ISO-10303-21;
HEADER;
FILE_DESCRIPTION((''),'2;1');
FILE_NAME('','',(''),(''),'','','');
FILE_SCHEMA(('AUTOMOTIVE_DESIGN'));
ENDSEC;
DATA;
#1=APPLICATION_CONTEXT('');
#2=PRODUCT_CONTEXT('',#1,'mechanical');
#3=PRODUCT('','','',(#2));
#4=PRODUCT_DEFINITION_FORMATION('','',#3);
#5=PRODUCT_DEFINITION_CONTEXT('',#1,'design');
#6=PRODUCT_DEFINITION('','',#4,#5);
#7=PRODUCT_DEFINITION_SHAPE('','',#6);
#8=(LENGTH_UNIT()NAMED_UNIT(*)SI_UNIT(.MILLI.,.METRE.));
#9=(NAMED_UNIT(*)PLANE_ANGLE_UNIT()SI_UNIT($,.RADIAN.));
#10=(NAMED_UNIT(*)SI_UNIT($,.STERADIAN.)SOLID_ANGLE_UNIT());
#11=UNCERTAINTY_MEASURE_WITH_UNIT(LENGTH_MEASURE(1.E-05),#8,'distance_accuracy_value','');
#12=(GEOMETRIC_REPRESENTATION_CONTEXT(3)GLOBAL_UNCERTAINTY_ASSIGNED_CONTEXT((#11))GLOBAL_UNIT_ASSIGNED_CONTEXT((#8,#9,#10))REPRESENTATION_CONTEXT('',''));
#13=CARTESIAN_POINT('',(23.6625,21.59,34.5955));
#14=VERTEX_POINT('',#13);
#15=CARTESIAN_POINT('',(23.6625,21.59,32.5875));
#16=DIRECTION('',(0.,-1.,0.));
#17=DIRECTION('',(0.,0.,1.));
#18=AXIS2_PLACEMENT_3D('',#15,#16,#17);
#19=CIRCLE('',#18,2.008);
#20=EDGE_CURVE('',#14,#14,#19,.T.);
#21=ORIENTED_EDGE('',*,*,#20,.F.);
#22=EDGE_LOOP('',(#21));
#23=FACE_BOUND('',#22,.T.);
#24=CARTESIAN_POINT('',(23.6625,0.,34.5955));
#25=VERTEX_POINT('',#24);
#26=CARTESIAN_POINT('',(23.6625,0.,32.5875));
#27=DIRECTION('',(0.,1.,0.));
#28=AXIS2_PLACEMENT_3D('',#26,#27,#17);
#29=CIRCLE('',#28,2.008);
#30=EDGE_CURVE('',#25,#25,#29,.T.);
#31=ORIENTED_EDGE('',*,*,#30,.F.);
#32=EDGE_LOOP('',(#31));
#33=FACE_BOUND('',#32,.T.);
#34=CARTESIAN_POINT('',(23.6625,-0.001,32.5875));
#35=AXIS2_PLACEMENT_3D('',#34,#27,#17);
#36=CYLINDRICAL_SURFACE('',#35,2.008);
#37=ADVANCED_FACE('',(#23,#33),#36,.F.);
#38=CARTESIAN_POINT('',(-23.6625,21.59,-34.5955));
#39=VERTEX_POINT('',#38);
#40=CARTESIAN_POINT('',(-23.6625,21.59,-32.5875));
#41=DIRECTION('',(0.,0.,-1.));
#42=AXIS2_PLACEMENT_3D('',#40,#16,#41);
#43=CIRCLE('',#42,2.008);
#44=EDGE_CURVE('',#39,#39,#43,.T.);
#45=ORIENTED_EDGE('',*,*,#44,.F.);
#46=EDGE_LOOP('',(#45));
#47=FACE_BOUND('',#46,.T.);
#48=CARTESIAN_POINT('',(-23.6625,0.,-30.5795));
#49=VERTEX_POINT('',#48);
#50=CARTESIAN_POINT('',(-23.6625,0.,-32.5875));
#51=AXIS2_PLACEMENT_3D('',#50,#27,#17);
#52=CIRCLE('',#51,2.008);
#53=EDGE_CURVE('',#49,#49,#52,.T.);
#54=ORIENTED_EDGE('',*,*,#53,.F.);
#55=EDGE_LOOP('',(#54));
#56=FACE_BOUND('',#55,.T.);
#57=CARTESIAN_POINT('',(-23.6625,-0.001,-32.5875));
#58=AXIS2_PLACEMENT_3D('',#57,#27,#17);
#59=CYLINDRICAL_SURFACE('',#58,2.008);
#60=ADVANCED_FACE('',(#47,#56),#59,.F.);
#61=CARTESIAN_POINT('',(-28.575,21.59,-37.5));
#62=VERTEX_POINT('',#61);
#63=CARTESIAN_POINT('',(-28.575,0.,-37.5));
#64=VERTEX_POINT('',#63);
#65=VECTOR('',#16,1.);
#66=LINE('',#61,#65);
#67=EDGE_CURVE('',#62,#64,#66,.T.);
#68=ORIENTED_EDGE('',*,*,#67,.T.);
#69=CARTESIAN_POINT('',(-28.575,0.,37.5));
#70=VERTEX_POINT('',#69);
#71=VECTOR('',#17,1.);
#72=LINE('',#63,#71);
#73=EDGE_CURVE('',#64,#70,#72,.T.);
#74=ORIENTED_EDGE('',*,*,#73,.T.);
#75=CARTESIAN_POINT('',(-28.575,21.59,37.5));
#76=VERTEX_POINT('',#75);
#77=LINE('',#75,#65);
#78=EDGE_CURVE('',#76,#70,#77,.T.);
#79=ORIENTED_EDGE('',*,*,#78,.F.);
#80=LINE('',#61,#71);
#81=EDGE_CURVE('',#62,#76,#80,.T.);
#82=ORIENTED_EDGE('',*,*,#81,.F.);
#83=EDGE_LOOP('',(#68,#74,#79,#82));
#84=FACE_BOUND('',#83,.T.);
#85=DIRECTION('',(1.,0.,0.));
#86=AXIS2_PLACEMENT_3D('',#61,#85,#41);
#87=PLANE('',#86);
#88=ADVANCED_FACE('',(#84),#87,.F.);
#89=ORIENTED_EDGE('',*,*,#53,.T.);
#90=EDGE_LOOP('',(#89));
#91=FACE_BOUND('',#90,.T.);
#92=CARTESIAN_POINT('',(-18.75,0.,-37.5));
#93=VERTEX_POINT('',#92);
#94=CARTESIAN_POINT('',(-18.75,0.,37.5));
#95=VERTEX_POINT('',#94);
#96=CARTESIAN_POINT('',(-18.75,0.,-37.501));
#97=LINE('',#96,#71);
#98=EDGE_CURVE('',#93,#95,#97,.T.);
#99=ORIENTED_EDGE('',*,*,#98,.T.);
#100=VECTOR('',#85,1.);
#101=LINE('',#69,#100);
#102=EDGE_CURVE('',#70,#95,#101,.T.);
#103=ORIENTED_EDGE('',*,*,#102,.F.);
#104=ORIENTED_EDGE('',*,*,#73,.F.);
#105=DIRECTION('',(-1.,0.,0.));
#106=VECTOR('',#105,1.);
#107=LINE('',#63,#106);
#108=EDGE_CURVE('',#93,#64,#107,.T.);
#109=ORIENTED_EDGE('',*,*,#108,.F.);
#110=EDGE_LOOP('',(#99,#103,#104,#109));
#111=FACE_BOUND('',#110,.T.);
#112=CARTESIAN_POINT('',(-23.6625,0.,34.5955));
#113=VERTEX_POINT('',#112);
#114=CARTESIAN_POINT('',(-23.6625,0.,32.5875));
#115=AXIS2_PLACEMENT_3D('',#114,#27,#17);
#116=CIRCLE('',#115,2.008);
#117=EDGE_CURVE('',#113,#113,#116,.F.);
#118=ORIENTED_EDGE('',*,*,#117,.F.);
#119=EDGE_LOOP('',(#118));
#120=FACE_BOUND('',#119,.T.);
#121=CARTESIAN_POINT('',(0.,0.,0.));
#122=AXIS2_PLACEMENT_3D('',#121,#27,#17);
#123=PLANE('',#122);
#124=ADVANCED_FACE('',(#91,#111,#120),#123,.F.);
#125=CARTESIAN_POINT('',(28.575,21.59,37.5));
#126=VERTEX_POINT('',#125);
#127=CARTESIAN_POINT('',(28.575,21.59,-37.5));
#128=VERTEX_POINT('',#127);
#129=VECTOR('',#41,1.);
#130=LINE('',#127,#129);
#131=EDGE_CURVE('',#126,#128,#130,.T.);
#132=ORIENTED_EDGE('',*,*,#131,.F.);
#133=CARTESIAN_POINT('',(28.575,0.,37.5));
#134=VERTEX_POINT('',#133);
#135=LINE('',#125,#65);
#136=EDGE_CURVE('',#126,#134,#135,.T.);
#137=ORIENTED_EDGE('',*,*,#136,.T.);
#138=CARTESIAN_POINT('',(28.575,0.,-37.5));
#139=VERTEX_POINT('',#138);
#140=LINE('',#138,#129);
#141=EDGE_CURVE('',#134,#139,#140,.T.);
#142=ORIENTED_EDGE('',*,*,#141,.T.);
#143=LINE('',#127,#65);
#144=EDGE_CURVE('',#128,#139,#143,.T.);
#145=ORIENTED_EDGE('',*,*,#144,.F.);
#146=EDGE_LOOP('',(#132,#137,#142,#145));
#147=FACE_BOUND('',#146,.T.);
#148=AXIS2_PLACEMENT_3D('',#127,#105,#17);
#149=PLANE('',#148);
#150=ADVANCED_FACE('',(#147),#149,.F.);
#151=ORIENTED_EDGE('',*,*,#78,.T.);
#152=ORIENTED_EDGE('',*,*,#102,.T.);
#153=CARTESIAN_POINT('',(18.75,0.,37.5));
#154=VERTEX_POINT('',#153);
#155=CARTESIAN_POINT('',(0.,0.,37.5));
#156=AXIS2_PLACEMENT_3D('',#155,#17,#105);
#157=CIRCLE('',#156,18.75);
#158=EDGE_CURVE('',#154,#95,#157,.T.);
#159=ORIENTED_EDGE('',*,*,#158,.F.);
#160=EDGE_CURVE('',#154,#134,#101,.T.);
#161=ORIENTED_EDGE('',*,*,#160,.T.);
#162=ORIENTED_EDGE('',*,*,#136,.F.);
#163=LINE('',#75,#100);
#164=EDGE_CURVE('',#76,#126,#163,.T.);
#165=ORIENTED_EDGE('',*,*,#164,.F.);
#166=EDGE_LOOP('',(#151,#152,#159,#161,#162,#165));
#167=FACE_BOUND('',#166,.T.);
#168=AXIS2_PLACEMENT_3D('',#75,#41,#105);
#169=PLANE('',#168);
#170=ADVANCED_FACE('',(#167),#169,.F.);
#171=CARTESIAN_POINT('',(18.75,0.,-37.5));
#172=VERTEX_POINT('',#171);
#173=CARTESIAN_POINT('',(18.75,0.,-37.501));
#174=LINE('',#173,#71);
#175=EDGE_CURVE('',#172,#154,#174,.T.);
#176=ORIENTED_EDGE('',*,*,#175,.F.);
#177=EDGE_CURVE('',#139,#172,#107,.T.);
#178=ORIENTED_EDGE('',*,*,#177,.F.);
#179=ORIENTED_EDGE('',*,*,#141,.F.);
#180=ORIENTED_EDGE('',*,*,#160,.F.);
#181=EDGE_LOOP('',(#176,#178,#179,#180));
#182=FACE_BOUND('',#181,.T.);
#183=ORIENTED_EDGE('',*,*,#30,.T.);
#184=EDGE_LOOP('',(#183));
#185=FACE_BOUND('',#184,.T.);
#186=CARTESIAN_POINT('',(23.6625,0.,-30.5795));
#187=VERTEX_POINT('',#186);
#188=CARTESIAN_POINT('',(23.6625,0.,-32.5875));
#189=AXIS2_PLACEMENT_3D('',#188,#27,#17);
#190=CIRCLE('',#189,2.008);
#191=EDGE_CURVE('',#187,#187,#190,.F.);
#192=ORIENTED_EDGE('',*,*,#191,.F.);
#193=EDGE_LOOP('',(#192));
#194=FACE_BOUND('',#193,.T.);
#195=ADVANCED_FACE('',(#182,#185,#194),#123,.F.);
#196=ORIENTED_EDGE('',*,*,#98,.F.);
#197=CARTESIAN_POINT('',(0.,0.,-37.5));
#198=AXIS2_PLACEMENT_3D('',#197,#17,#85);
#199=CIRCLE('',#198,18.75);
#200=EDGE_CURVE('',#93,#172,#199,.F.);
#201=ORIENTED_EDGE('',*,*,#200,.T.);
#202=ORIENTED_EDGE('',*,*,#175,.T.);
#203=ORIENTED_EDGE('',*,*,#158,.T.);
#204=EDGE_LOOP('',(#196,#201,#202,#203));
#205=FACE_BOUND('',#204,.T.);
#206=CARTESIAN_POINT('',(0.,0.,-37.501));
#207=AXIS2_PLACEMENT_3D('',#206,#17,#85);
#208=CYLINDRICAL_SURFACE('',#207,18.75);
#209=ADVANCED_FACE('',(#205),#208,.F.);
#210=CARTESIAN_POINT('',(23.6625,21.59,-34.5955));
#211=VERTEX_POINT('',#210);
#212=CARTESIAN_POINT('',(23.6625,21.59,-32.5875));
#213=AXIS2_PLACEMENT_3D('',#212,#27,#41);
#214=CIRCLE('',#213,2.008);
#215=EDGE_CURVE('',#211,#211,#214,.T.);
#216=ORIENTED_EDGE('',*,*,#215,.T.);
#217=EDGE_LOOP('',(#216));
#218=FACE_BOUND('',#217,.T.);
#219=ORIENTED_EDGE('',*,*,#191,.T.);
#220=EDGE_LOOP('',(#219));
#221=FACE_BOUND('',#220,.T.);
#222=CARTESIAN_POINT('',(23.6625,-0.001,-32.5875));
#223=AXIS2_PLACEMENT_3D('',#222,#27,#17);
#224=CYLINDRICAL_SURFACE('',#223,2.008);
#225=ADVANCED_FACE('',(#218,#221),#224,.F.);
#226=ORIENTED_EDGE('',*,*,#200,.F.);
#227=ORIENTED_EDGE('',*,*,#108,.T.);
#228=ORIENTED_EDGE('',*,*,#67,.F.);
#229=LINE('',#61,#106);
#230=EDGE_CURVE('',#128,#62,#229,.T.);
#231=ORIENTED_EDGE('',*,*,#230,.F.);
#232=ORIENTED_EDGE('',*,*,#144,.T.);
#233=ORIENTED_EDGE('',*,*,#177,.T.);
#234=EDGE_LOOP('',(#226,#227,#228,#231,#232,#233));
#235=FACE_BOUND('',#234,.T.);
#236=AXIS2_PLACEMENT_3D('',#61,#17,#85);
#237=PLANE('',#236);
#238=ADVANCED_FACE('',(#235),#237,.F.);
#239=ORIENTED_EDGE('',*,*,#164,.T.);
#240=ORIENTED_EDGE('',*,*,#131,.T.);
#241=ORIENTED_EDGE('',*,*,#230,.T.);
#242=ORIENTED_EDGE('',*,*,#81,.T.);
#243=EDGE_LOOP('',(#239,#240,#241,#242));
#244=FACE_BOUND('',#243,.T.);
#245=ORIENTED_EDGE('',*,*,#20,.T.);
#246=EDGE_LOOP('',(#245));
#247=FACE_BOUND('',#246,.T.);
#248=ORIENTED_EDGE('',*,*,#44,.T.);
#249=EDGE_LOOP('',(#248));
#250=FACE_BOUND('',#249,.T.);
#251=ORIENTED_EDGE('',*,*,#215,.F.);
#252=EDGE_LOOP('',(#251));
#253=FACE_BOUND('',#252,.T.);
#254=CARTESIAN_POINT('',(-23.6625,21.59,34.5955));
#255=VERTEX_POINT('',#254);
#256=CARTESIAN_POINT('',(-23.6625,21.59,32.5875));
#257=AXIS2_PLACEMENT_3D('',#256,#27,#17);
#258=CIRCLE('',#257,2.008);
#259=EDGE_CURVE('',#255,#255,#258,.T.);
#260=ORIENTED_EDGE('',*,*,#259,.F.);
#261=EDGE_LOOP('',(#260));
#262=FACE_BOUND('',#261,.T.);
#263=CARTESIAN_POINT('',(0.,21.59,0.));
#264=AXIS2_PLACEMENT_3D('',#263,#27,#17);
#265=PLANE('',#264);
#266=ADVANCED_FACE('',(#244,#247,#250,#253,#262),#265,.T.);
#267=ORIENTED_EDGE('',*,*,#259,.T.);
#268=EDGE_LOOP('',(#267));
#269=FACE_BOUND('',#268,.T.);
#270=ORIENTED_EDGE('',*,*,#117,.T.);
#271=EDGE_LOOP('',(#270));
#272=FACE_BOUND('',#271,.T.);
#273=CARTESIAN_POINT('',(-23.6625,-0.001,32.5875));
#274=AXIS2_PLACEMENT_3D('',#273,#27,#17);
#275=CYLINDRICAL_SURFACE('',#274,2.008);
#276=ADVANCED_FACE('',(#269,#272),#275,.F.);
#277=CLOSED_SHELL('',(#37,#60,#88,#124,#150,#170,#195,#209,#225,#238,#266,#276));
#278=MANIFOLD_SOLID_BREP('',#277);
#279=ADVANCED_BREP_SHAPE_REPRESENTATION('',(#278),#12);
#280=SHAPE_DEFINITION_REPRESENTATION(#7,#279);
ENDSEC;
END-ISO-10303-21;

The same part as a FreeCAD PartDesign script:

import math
import FreeCAD as App
import Part
import Sketcher
Q = App.Units.Quantity

doc = App.newDocument("Part")
body = doc.addObject("PartDesign::Body", "Body")

sketch1 = body.newObject("Sketcher::SketchObject", "Sketch")
sketch1.AttachmentSupport = (doc.getObject("XZ_Plane"), [""])
sketch1.MapMode = "FlatFace"
sketch1.addGeometry([
    Part.LineSegment(App.Vector(-29, -38, 0), App.Vector(-29, 38, 0)),
    Part.LineSegment(App.Vector(-29, 38, 0), App.Vector(29, 38, 0)),
    Part.LineSegment(App.Vector(29, 38, 0), App.Vector(29, -38, 0)),
    Part.LineSegment(App.Vector(29, -38, 0), App.Vector(-29, -38, 0)),
], False)
sketch1.addConstraint([
    Sketcher.Constraint("Coincident", 0, 2, 1, 1),
    Sketcher.Constraint("Coincident", 1, 2, 2, 1),
    Sketcher.Constraint("Coincident", 2, 2, 3, 1),
    Sketcher.Constraint("Coincident", 3, 2, 0, 1),
    Sketcher.Constraint("Vertical", 0),
    Sketcher.Constraint("Horizontal", 1),
    Sketcher.Constraint("Vertical", 2),
    Sketcher.Constraint("Horizontal", 3),
    Sketcher.Constraint("Symmetric", 0, 2, 2, 2, -1, 1),
    Sketcher.Constraint("DistanceY", 0, 1, 0, 2, Q("75 mm")),
    Sketcher.Constraint("DistanceX", 1, 1, 1, 2, Q("57.15 mm")),
])
pad1 = body.newObject("PartDesign::Pad", "Pad")
pad1.Profile = sketch1
pad1.Length = 21.59
pad1.Reversed = True

sketch2 = body.newObject("Sketcher::SketchObject", "Sketch001")
sketch2.AttachmentSupport = (doc.getObject("XY_Plane"), [""])
sketch2.MapMode = "FlatFace"
sketch2.AttachmentOffset = App.Placement(App.Vector(0, 0, 37.5), App.Rotation())
sketch2.addGeometry([
    Part.LineSegment(App.Vector(-19, 0, 0), App.Vector(19, 0, 0)),
    Part.ArcOfCircle(Part.Circle(App.Vector(0, 0, 0), App.Vector(0, 0, 1), 19), math.radians(0), math.radians(180)),
], False)
sketch2.addConstraint([
    Sketcher.Constraint("Coincident", 0, 1, 1, 2),
    Sketcher.Constraint("Coincident", 1, 1, 0, 2),
    Sketcher.Constraint("Horizontal", 0),
    Sketcher.Constraint("Coincident", 1, 3, -1, 1),
    Sketcher.Constraint("PointOnObject", 0, 1, -1),
    Sketcher.Constraint("Radius", 1, Q("18.75 mm")),
])
pocket1 = body.newObject("PartDesign::Pocket", "Pocket")
pocket1.Profile = sketch2
pocket1.Type = "UpToFirst"

sketch3 = body.newObject("Sketcher::SketchObject", "Sketch002")
sketch3.AttachmentSupport = (doc.getObject("XZ_Plane"), [""])
sketch3.MapMode = "FlatFace"
sketch3.AttachmentOffset = App.Placement(App.Vector(0, 0, -21.59), App.Rotation())
sketch3.addGeometry(Part.Circle(App.Vector(-23.7, 32.6, 0), App.Vector(0, 0, 1), 2), False)
sketch3.addConstraint([
    Sketcher.Constraint("Diameter", 0, Q("4.016 mm")),
    Sketcher.Constraint("DistanceX", 0, 3, -1, 1, Q("23.6625 mm")),
    Sketcher.Constraint("DistanceY", -1, 1, 0, 3, Q("32.5875 mm")),
])
pocket2 = body.newObject("PartDesign::Pocket", "Pocket001")
pocket2.Profile = sketch3
pocket2.Length = 21.59
pocket2.Reversed = True
doc.recompute()

mirrored = body.newObject("PartDesign::Mirrored", "Mirrored")
mirrored.Originals = [pocket2]
mirrored.MirrorPlane = (doc.getObject("YZ_Plane"), [""])
body.Tip = mirrored
doc.recompute()

mirrored2 = body.newObject("PartDesign::Mirrored", "Mirrored001")
mirrored2.Originals = [pocket2]
mirrored2.MirrorPlane = (doc.getObject("XY_Plane"), [""])
body.Tip = mirrored2

sketch4 = body.newObject("Sketcher::SketchObject", "Sketch003")
sketch4.AttachmentSupport = (doc.getObject("XZ_Plane"), [""])
sketch4.MapMode = "FlatFace"
sketch4.AttachmentOffset = App.Placement(App.Vector(0, 0, -21.59), App.Rotation())
sketch4.addGeometry(Part.Circle(App.Vector(23.7, -32.6, 0), App.Vector(0, 0, 1), 2), False)
sketch4.addConstraint([
    Sketcher.Constraint("Diameter", 0, Q("4.016 mm")),
    Sketcher.Constraint("DistanceX", -1, 1, 0, 3, Q("23.6625 mm")),
    Sketcher.Constraint("DistanceY", 0, 3, -1, 1, Q("32.5875 mm")),
])
pocket3 = body.newObject("PartDesign::Pocket", "Pocket002")
pocket3.Profile = sketch4
pocket3.Length = 21.59
pocket3.Reversed = True

doc.recompute()
